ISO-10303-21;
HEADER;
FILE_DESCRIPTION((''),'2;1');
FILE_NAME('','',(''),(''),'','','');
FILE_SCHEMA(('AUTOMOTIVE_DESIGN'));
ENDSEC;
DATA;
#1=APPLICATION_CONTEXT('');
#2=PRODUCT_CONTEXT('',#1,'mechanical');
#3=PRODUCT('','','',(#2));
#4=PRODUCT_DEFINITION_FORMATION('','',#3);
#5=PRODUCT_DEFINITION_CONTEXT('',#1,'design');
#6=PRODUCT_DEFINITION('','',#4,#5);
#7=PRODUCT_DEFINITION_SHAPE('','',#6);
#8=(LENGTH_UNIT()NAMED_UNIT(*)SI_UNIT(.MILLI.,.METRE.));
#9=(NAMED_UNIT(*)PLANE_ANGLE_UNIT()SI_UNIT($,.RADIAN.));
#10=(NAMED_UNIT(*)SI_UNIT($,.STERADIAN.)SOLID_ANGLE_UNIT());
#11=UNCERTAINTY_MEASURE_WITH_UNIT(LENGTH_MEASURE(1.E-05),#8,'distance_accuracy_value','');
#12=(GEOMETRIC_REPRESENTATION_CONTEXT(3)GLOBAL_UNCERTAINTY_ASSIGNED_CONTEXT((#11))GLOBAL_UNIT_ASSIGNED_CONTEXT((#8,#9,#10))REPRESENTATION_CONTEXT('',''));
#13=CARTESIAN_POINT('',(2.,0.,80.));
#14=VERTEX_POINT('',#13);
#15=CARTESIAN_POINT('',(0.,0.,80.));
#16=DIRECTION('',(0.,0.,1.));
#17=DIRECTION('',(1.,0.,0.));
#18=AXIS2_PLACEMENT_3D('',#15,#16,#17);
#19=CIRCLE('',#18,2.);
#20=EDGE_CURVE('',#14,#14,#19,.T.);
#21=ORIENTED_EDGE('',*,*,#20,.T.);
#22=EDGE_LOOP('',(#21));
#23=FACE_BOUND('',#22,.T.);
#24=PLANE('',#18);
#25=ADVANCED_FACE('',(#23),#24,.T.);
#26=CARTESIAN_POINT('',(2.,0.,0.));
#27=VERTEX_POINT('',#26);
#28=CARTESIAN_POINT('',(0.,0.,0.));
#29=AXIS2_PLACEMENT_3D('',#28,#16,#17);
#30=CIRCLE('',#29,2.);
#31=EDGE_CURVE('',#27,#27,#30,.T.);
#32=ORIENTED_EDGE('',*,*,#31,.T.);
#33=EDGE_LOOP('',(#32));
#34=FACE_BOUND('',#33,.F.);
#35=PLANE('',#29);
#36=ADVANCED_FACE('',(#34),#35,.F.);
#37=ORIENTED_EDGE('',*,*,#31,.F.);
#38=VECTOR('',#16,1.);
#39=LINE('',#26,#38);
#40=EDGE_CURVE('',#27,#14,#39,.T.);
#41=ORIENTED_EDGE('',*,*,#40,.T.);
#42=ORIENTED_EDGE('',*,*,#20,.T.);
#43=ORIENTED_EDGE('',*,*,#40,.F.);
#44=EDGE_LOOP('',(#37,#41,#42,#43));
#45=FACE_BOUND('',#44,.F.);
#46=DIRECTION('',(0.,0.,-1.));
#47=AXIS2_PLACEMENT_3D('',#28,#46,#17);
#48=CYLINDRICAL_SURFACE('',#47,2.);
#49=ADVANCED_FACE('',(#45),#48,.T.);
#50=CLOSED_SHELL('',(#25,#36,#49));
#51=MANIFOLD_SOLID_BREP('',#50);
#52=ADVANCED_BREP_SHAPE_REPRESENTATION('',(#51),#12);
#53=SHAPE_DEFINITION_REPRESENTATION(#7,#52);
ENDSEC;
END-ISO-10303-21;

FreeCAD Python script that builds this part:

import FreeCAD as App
import Part
import Sketcher
from FreeCAD import Vector
Q = App.Units.Quantity

doc = App.newDocument("Part")
body = doc.addObject("PartDesign::Body", "Body")

# Sketch on XY plane
sketch1 = body.newObject("Sketcher::SketchObject", "Sketch")
sketch1.AttachmentSupport = (doc.getObject("XY_Plane"), [""])
sketch1.MapMode = "FlatFace"
sketch1.addGeometry(Part.Circle(Vector(0, 0, 0), Vector(0, 0, 1), 2), False)
sketch1.addConstraint(Sketcher.Constraint("Coincident", 0, 3, -1, 1))
sketch1.addConstraint(Sketcher.Constraint("Diameter", 0, Q("4 mm")))
pad1 = body.newObject("PartDesign::Pad", "Pad")
pad1.Profile = sketch1
pad1.Length = 80

doc.recompute()
